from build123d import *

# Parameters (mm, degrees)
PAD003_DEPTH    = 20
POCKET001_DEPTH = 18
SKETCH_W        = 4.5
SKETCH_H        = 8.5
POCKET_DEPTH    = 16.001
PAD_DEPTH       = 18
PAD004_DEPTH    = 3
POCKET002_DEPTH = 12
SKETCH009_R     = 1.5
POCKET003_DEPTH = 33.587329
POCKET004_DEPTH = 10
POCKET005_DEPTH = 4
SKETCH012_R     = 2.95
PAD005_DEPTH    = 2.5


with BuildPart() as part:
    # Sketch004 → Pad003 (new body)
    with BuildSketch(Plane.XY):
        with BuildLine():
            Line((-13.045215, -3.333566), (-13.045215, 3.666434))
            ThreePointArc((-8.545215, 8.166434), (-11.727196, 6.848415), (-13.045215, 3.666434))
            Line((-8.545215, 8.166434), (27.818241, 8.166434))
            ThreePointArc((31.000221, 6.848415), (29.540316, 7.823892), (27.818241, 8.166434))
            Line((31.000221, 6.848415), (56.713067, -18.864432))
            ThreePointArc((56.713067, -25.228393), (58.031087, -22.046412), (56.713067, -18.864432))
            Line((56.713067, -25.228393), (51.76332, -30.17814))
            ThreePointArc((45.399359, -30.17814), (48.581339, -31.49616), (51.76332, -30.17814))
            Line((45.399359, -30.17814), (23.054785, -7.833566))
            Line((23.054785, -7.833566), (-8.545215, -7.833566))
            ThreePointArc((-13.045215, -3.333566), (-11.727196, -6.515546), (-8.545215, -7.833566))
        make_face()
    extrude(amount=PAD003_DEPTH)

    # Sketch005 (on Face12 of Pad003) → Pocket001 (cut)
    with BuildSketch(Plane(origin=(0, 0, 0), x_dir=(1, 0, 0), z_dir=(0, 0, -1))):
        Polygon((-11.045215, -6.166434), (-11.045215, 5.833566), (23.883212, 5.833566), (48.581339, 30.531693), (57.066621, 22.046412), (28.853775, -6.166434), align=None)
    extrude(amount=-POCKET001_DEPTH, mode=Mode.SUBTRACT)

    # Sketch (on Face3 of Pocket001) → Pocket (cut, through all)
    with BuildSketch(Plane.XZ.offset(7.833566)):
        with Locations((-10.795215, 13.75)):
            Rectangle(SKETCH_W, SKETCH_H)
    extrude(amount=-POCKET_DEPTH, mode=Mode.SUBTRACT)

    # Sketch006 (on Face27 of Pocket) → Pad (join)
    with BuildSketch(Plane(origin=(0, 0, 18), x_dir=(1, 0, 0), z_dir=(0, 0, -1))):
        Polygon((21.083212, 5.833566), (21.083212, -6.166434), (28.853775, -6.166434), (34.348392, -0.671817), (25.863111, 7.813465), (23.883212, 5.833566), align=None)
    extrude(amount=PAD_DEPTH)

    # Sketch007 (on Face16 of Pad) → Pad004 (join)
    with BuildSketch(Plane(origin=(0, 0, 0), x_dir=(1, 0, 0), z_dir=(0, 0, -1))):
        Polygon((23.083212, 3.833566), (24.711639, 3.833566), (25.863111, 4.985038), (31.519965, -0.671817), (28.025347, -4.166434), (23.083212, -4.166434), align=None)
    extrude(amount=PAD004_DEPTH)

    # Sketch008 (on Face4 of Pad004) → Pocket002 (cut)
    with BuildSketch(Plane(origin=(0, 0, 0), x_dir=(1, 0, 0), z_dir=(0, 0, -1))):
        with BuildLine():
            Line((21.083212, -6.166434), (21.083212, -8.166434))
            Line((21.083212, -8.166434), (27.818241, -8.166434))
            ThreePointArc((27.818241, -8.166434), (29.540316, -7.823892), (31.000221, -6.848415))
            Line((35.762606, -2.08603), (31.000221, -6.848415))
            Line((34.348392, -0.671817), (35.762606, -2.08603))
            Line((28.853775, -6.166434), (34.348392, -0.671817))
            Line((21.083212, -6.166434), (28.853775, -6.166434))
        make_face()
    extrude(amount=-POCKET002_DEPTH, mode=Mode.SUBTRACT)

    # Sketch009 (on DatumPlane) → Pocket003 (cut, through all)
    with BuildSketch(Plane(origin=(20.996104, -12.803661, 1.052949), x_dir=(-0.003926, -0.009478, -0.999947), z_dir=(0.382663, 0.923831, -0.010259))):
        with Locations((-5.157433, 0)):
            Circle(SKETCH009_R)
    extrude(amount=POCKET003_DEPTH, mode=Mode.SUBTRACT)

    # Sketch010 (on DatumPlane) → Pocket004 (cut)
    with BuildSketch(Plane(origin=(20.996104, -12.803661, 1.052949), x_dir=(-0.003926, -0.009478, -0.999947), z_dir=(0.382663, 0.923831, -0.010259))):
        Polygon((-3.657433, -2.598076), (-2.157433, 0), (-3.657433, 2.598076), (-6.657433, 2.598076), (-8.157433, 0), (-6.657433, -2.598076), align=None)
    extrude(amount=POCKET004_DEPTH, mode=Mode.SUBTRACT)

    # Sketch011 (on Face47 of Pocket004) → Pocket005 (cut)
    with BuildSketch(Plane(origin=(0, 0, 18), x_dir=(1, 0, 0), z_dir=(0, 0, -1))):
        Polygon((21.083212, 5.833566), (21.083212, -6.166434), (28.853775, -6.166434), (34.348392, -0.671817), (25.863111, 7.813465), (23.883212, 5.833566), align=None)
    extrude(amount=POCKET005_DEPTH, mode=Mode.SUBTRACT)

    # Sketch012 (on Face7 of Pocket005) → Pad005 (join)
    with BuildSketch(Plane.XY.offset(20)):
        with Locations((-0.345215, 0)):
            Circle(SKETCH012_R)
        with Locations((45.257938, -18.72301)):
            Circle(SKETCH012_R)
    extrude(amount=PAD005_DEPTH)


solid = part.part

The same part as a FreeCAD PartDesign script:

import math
import FreeCAD as App
import Part
import Sketcher
Q = App.Units.Quantity


def add_polygon(sketch, points):
    """Adds a closed chain of lines whose ends are joined by coincident constraints."""
    first, n = sketch.GeometryCount, len(points)
    for a, b in zip(points, points[1:] + points[:1]):
        sketch.addGeometry(Part.LineSegment(App.Vector(*a, 0), App.Vector(*b, 0)), False)
    for i in range(n):
        sketch.addConstraint(Sketcher.Constraint("Coincident", first + i, 2, first + (i + 1) % n, 1))

doc = App.newDocument("Part")
body = doc.addObject("PartDesign::Body", "Body")

sketch1 = body.newObject("Sketcher::SketchObject", "Sketch")
sketch1.AttachmentSupport = (doc.getObject("XY_Plane"), [""])
sketch1.MapMode = "FlatFace"
sketch1.addGeometry(Part.LineSegment(App.Vector(-13, 3.7, 0), App.Vector(-13, -3.3, 0)), False)
sketch1.addGeometry(Part.ArcOfCircle(Part.Circle(App.Vector(-8.5, -3.3, 0), App.Vector(0, 0, 1), 4.5), math.radians(-180), math.radians(-90)), False)
sketch1.addGeometry(Part.LineSegment(App.Vector(-8.5, -7.8, 0), App.Vector(23.1, -7.8, 0)), False)
sketch1.addGeometry(Part.LineSegment(App.Vector(23.1, -7.8, 0), App.Vector(45.4, -30.2, 0)), False)
sketch1.addGeometry(Part.ArcOfCircle(Part.Circle(App.Vector(48.6, -27, 0), App.Vector(0, 0, 1), 4.5), math.radians(-135), math.radians(-45)), False)
sketch1.addGeometry(Part.LineSegment(App.Vector(51.8, -30.2, 0), App.Vector(56.7, -25.2, 0)), False)
sketch1.addGeometry(Part.ArcOfCircle(Part.Circle(App.Vector(53.5, -22, 0), App.Vector(0, 0, 1), 4.5), math.radians(-45), math.radians(45)), False)
sketch1.addGeometry(Part.LineSegment(App.Vector(56.7, -18.9, 0), App.Vector(31, 6.8, 0)), False)
sketch1.addGeometry(Part.ArcOfCircle(Part.Circle(App.Vector(27.8, 3.7, 0), App.Vector(0, 0, 1), 4.5), math.radians(45), math.radians(90)), False)
sketch1.addGeometry(Part.LineSegment(App.Vector(27.8, 8.2, 0), App.Vector(-8.5, 8.2, 0)), False)
sketch1.addGeometry(Part.ArcOfCircle(Part.Circle(App.Vector(-8.5, 3.7, 0), App.Vector(0, 0, 1), 4.5), math.radians(90), math.radians(180)), False)
sketch1.addConstraint(Sketcher.Constraint("Tangent", 0, 2, 1, 1))
sketch1.addConstraint(Sketcher.Constraint("Tangent", 1, 2, 2, 1))
sketch1.addConstraint(Sketcher.Constraint("Coincident", 2, 2, 3, 1))
sketch1.addConstraint(Sketcher.Constraint("Tangent", 3, 2, 4, 1))
sketch1.addConstraint(Sketcher.Constraint("Tangent", 4, 2, 5, 1))
sketch1.addConstraint(Sketcher.Constraint("Tangent", 5, 2, 6, 1))
sketch1.addConstraint(Sketcher.Constraint("Tangent", 6, 2, 7, 1))
sketch1.addConstraint(Sketcher.Constraint("Tangent", 7, 2, 8, 1))
sketch1.addConstraint(Sketcher.Constraint("Tangent", 8, 2, 9, 1))
sketch1.addConstraint(Sketcher.Constraint("Tangent", 9, 2, 10, 1))
sketch1.addConstraint(Sketcher.Constraint("Tangent", 10, 2, 0, 1))
sketch1.addConstraint(Sketcher.Constraint("Vertical", 0))
sketch1.addConstraint(Sketcher.Constraint("Horizontal", 2))
sketch1.addConstraint(Sketcher.Constraint("Horizontal", 9))
sketch1.addConstraint(Sketcher.Constraint("Equal", 1, 4))
sketch1.addConstraint(Sketcher.Constraint("Equal", 4, 6))
sketch1.addConstraint(Sketcher.Constraint("Equal", 1, 8))
sketch1.addConstraint(Sketcher.Constraint("Equal", 6, 10))
sketch1.addConstraint(Sketcher.Constraint("Perpendicular", 3, 5))
sketch1.addConstraint(Sketcher.Constraint("Perpendicular", 5, 7))
sketch1.addConstraint(Sketcher.Constraint("Horizontal", 3, 2, 4, 2))
sketch1.addConstraint(Sketcher.Constraint("Radius", 1, Q("4.5 mm")))
sketch1.addConstraint(Sketcher.Constraint("DistanceY", 0, 2, 0, 1, Q("7 mm")))
sketch1.addConstraint(Sketcher.Constraint("Distance", 5, Q("6.999999 mm")))
sketch1.addConstraint(Sketcher.Constraint("DistanceX", 2, 1, 2, 2, Q("31.6 mm")))
sketch1.addConstraint(Sketcher.Constraint("Distance", 3, Q("31.6 mm")))
sketch1.addConstraint(Sketcher.Constraint("DistanceX", -1, 1, 4, 3, Q("48.581339 mm")))
sketch1.addConstraint(Sketcher.Constraint("DistanceY", 4, 3, -1, 1, Q("26.996161 mm")))
pad1 = body.newObject("PartDesign::Pad", "Pad")
pad1.Profile = sketch1
pad1.Length = 20

sketch2 = body.newObject("Sketcher::SketchObject", "Sketch001")
sketch2.AttachmentSupport = (doc.getObject("XY_Plane"), [""])
sketch2.MapMode = "FlatFace"
add_polygon(sketch2, [(-11, -6), (-11, 6), (29, 6), (57, -22), (49, -31), (24, -6)])
sketch2.addConstraint(Sketcher.Constraint("Vertical", 0))
sketch2.addConstraint(Sketcher.Constraint("Horizontal", 1))
sketch2.addConstraint(Sketcher.Constraint("Horizontal", 5))
sketch2.addConstraint(Sketcher.Constraint("Perpendicular", 2, 3))
sketch2.addConstraint(Sketcher.Constraint("Perpendicular", 3, 4))
sketch2.addConstraint(Sketcher.Constraint("DistanceY", 0, 1, 0, 2, Q("12 mm")))
sketch2.addConstraint(Sketcher.Constraint("Angle", 2, Q("-45 deg")))
sketch2.addConstraint(Sketcher.Constraint("Distance", 3, Q("12 mm")))
sketch2.addConstraint(Sketcher.Constraint("DistanceX", 1, 1, 1, 2, Q("39.89899 mm")))
sketch2.addConstraint(Sketcher.Constraint("Distance", 2, Q("39.898989 mm")))
sketch2.addConstraint(Sketcher.Constraint("DistanceX", -1, 1, 2, 2, Q("57.066621 mm")))
sketch2.addConstraint(Sketcher.Constraint("DistanceY", 2, 2, -1, 1, Q("22.046412 mm")))
pocket1 = body.newObject("PartDesign::Pocket", "Pocket")
pocket1.Profile = sketch2
pocket1.Length = 18
pocket1.Reversed = True

sketch3 = body.newObject("Sketcher::SketchObject", "Sketch002")
sketch3.AttachmentSupport = (doc.getObject("XZ_Plane"), [""])
sketch3.MapMode = "FlatFace"
sketch3.AttachmentOffset = App.Placement(App.Vector(0, 0, 7.833566), App.Rotation())
add_polygon(sketch3, [(-13, 18), (-13, 9.5), (-8.5, 9.5), (-8.5, 18)])
sketch3.addConstraint(Sketcher.Constraint("Vertical", 0))
sketch3.addConstraint(Sketcher.Constraint("Horizontal", 1))
sketch3.addConstraint(Sketcher.Constraint("Vertical", 2))
sketch3.addConstraint(Sketcher.Constraint("Horizontal", 3))
sketch3.addConstraint(Sketcher.Constraint("DistanceX", 1, 1, 1, 2, Q("4.5 mm")))
sketch3.addConstraint(Sketcher.Constraint("DistanceY", 0, 2, 0, 1, Q("8.5 mm")))
sketch3.addConstraint(Sketcher.Constraint("DistanceY", -1, 1, 2, 2, Q("18 mm")))
sketch3.addConstraint(Sketcher.Constraint("DistanceX", 0, 2, -1, 1, Q("13.045215 mm")))
pocket2 = body.newObject("PartDesign::Pocket", "Pocket001")
pocket2.Profile = sketch3
pocket2.Type = "ThroughAll"

sketch4 = body.newObject("Sketcher::SketchObject", "Sketch003")
sketch4.AttachmentSupport = (doc.getObject("XY_Plane"), [""])
sketch4.MapMode = "FlatFace"
sketch4.AttachmentOffset = App.Placement(App.Vector(0, 0, 18), App.Rotation())
add_polygon(sketch4, [(21.1, -5.8), (21.1, 6.2), (28.9, 6.2), (34.3, 0.7), (25.9, -7.8), (23.9, -5.8)])
sketch4.addConstraint(Sketcher.Constraint("Vertical", 0))
sketch4.addConstraint(Sketcher.Constraint("Horizontal", 1))
sketch4.addConstraint(Sketcher.Constraint("Horizontal", 5))
sketch4.addConstraint(Sketcher.Constraint("Perpendicular", 2, 3))
sketch4.addConstraint(Sketcher.Constraint("Perpendicular", 3, 4))
sketch4.addConstraint(Sketcher.Constraint("DistanceY", 0, 1, 0, 2, Q("12 mm")))
sketch4.addConstraint(Sketcher.Constraint("Angle", 2, Q("-45 deg")))
sketch4.addConstraint(Sketcher.Constraint("Distance", 3, Q("12 mm")))
sketch4.addConstraint(Sketcher.Constraint("DistanceX", 5, 2, 5, 1, Q("2.8 mm")))
sketch4.addConstraint(Sketcher.Constraint("Distance", 4, Q("2.8 mm")))
sketch4.addConstraint(Sketcher.Constraint("DistanceX", -1, 1, 0, 2, Q("21.083212 mm")))
sketch4.addConstraint(Sketcher.Constraint("DistanceY", -1, 1, 0, 2, Q("6.166434 mm")))
pad2 = body.newObject("PartDesign::Pad", "Pad001")
pad2.Profile = sketch4
pad2.Length = 18
pad2.Reversed = True

sketch5 = body.newObject("Sketcher::SketchObject", "Sketch004")
sketch5.AttachmentSupport = (doc.getObject("XY_Plane"), [""])
sketch5.MapMode = "FlatFace"
add_polygon(sketch5, [(24.7, -3.8), (23.1, -3.8), (23.1, 4.2), (28, 4.2), (31.5, 0.7), (25.9, -5)])
sketch5.addConstraint(Sketcher.Constraint("Horizontal", 0))
sketch5.addConstraint(Sketcher.Constraint("Vertical", 1))
sketch5.addConstraint(Sketcher.Constraint("Horizontal", 2))
sketch5.addConstraint(Sketcher.Constraint("Perpendicular", 3, 4))
sketch5.addConstraint(Sketcher.Constraint("Perpendicular", 4, 5))
sketch5.addConstraint(Sketcher.Constraint("DistanceY", 1, 1, 1, 2, Q("8 mm")))
sketch5.addConstraint(Sketcher.Constraint("Angle", 3, Q("-44.999992 deg")))
sketch5.addConstraint(Sketcher.Constraint("Distance", 4, Q("8 mm")))
sketch5.addConstraint(Sketcher.Constraint("DistanceX", 0, 2, 4, 2, Q("2.779899 mm")))
sketch5.addConstraint(Sketcher.Constraint("DistanceX", 0, 2, 0, 1, Q("1.628427 mm")))
sketch5.addConstraint(Sketcher.Constraint("DistanceX", -1, 1, 0, 2, Q("23.083212 mm")))
sketch5.addConstraint(Sketcher.Constraint("DistanceY", 4, 2, -1, 1, Q("4.985038 mm")))
pad3 = body.newObject("PartDesign::Pad", "Pad002")
pad3.Profile = sketch5
pad3.Length = 3
pad3.Reversed = True

sketch6 = body.newObject("Sketcher::SketchObject", "Sketch005")
sketch6.AttachmentSupport = (doc.getObject("XY_Plane"), [""])
sketch6.MapMode = "FlatFace"
sketch6.addGeometry(Part.LineSegment(App.Vector(21.1, 6.2, 0), App.Vector(21.1, 8.2, 0)), False)
sketch6.addGeometry(Part.LineSegment(App.Vector(21.1, 8.2, 0), App.Vector(27.8, 8.2, 0)), False)
sketch6.addGeometry(Part.ArcOfCircle(Part.Circle(App.Vector(27.8, 3.7, 0), App.Vector(0, 0, 1), 4.5), math.radians(45), math.radians(90)), False)
sketch6.addGeometry(Part.LineSegment(App.Vector(31, 6.8, 0), App.Vector(35.8, 2.1, 0)), False)
sketch6.addGeometry(Part.LineSegment(App.Vector(35.8, 2.1, 0), App.Vector(34.3, 0.7, 0)), False)
sketch6.addGeometry(Part.LineSegment(App.Vector(34.3, 0.7, 0), App.Vector(28.9, 6.2, 0)), False)
sketch6.addGeometry(Part.LineSegment(App.Vector(28.9, 6.2, 0), App.Vector(21.1, 6.2, 0)), False)
sketch6.addConstraint(Sketcher.Constraint("Coincident", 0, 2, 1, 1))
sketch6.addConstraint(Sketcher.Constraint("Tangent", 1, 2, 2, 2))
sketch6.addConstraint(Sketcher.Constraint("Tangent", 2, 1, 3, 1))
sketch6.addConstraint(Sketcher.Constraint("Coincident", 3, 2, 4, 1))
sketch6.addConstraint(Sketcher.Constraint("Coincident", 4, 2, 5, 1))
sketch6.addConstraint(Sketcher.Constraint("Coincident", 5, 2, 6, 1))
sketch6.addConstraint(Sketcher.Constraint("Coincident", 6, 2, 0, 1))
sketch6.addConstraint(Sketcher.Constraint("Vertical", 0))
sketch6.addConstraint(Sketcher.Constraint("Horizontal", 1))
sketch6.addConstraint(Sketcher.Constraint("Horizontal", 6))
sketch6.addConstraint(Sketcher.Constraint("Perpendicular", 3, 4))
sketch6.addConstraint(Sketcher.Constraint("Perpendicular", 4, 5))
sketch6.addConstraint(Sketcher.Constraint("Radius", 2, Q("4.500001 mm")))
sketch6.addConstraint(Sketcher.Constraint("DistanceY", 0, 1, 0, 2, Q("2 mm")))
sketch6.addConstraint(Sketcher.Constraint("Angle", 3, Q("-45 deg")))
sketch6.addConstraint(Sketcher.Constraint("Distance", 4, Q("2 mm")))
sketch6.addConstraint(Sketcher.Constraint("DistanceX", 1, 1, 1, 2, Q("6.735029 mm")))
sketch6.addConstraint(Sketcher.Constraint("DistanceY", 4, 2, 2, 1, Q("6.176598 mm")))
sketch6.addConstraint(Sketcher.Constraint("DistanceX", -1, 1, 2, 3, Q("27.818241 mm")))
sketch6.addConstraint(Sketcher.Constraint("DistanceY", -1, 1, 3, 2, Q("2.08603 mm")))
pocket3 = body.newObject("PartDesign::Pocket", "Pocket002")
pocket3.Profile = sketch6
pocket3.Length = 12
pocket3.Reversed = True

sketch7 = body.newObject("Sketcher::SketchObject", "Sketch006")
sketch7.Placement = App.Placement(App.Vector(20.996104, -12.803661, 1.052949), App.Rotation(App.Vector(-0.003926021, -0.009478051, -0.999947375), App.Vector(-0.923879649, 0.382683151, 0.00000008), App.Vector(0.382663012, 0.92383103, -0.010259), "ZXY"))
sketch7.addGeometry(Part.Circle(App.Vector(-5.2, 0, 0), App.Vector(0, 0, 1), 1.5), False)
sketch7.addConstraint(Sketcher.Constraint("PointOnObject", 0, 3, -1))
sketch7.addConstraint(Sketcher.Constraint("Diameter", 0, Q("3 mm")))
sketch7.addConstraint(Sketcher.Constraint("DistanceX", 0, 3, -1, 1, Q("5.157433 mm")))
pocket4 = body.newObject("PartDesign::Pocket", "Pocket003")
pocket4.Profile = sketch7
pocket4.Type = "ThroughAll"
pocket4.Reversed = True

sketch8 = body.newObject("Sketcher::SketchObject", "Sketch007")
sketch8.Placement = App.Placement(App.Vector(20.996104, -12.803661, 1.052949), App.Rotation(App.Vector(-0.003926021, -0.009478051, -0.999947375), App.Vector(-0.923879649, 0.382683151, 0.00000008), App.Vector(0.382663012, 0.92383103, -0.010259), "ZXY"))
add_polygon(sketch8, [(-3.7, -2.6), (-2.2, 0), (-3.7, 2.6), (-6.7, 2.6), (-8.2, 0), (-6.7, -2.6)])
sketch8.addConstraint(Sketcher.Constraint("Horizontal", 2))
sketch8.addConstraint(Sketcher.Constraint("Horizontal", 5))
sketch8.addConstraint(Sketcher.Constraint("Symmetric", 2, 2, 4, 2, -1))
sketch8.addConstraint(Sketcher.Constraint("PointOnObject", 0, 2, -1))
sketch8.addConstraint(Sketcher.Constraint("PointOnObject", 3, 2, -1))
sketch8.addConstraint(Sketcher.Constraint("Parallel", 0, 3))
sketch8.addConstraint(Sketcher.Constraint("Parallel", 1, 4))
sketch8.addConstraint(Sketcher.Constraint("DistanceX", 2, 2, 2, 1, Q("3 mm")))
sketch8.addConstraint(Sketcher.Constraint("Angle", 0, Q("59.999998 deg")))
sketch8.addConstraint(Sketcher.Constraint("Distance", 0, Q("3 mm")))
sketch8.addConstraint(Sketcher.Constraint("DistanceX", 0, 2, -1, 1, Q("2.157433 mm")))
pocket5 = body.newObject("PartDesign::Pocket", "Pocket004")
pocket5.Profile = sketch8
pocket5.Length = 10
pocket5.Reversed = True

sketch9 = body.newObject("Sketcher::SketchObject", "Sketch008")
sketch9.AttachmentSupport = (doc.getObject("XY_Plane"), [""])
sketch9.MapMode = "FlatFace"
sketch9.AttachmentOffset = App.Placement(App.Vector(0, 0, 18), App.Rotation())
add_polygon(sketch9, [(21.1, -5.8), (21.1, 6.2), (28.9, 6.2), (34.3, 0.7), (25.9, -7.8), (23.9, -5.8)])
sketch9.addConstraint(Sketcher.Constraint("Vertical", 0))
sketch9.addConstraint(Sketcher.Constraint("Horizontal", 1))
sketch9.addConstraint(Sketcher.Constraint("Horizontal", 5))
sketch9.addConstraint(Sketcher.Constraint("Perpendicular", 2, 3))
sketch9.addConstraint(Sketcher.Constraint("Perpendicular", 3, 4))
sketch9.addConstraint(Sketcher.Constraint("DistanceY", 0, 1, 0, 2, Q("12 mm")))
sketch9.addConstraint(Sketcher.Constraint("Angle", 2, Q("-45 deg")))
sketch9.addConstraint(Sketcher.Constraint("Distance", 3, Q("12 mm")))
sketch9.addConstraint(Sketcher.Constraint("DistanceX", 5, 2, 5, 1, Q("2.8 mm")))
sketch9.addConstraint(Sketcher.Constraint("Distance", 4, Q("2.8 mm")))
sketch9.addConstraint(Sketcher.Constraint("DistanceX", -1, 1, 0, 2, Q("21.083212 mm")))
sketch9.addConstraint(Sketcher.Constraint("DistanceY", -1, 1, 0, 2, Q("6.166434 mm")))
pocket6 = body.newObject("PartDesign::Pocket", "Pocket005")
pocket6.Profile = sketch9
pocket6.Length = 4

sketch10 = body.newObject("Sketcher::SketchObject", "Sketch009")
sketch10.AttachmentSupport = (doc.getObject("XY_Plane"), [""])
sketch10.MapMode = "FlatFace"
sketch10.AttachmentOffset = App.Placement(App.Vector(0, 0, 20), App.Rotation())
sketch10.addGeometry(Part.Circle(App.Vector(-0.3, 0, 0), App.Vector(0, 0, 1), 3), False)
sketch10.addGeometry(Part.Circle(App.Vector(45.3, -18.7, 0), App.Vector(0, 0, 1), 3), False)
sketch10.addConstraint(Sketcher.Constraint("Equal", 0, 1))
sketch10.addConstraint(Sketcher.Constraint("PointOnObject", 0, 3, -1))
sketch10.addConstraint(Sketcher.Constraint("Diameter", 0, Q("5.9 mm")))
sketch10.addConstraint(Sketcher.Constraint("DistanceX", -1, 1, 1, 3, Q("45.257938 mm")))
sketch10.addConstraint(Sketcher.Constraint("DistanceY", 1, 3, -1, 1, Q("18.72301 mm")))
sketch10.addConstraint(Sketcher.Constraint("DistanceX", 0, 3, -1, 1, Q("0.345215 mm")))
pad4 = body.newObject("PartDesign::Pad", "Pad003")
pad4.Profile = sketch10
pad4.Length = 2.5

doc.recompute()
